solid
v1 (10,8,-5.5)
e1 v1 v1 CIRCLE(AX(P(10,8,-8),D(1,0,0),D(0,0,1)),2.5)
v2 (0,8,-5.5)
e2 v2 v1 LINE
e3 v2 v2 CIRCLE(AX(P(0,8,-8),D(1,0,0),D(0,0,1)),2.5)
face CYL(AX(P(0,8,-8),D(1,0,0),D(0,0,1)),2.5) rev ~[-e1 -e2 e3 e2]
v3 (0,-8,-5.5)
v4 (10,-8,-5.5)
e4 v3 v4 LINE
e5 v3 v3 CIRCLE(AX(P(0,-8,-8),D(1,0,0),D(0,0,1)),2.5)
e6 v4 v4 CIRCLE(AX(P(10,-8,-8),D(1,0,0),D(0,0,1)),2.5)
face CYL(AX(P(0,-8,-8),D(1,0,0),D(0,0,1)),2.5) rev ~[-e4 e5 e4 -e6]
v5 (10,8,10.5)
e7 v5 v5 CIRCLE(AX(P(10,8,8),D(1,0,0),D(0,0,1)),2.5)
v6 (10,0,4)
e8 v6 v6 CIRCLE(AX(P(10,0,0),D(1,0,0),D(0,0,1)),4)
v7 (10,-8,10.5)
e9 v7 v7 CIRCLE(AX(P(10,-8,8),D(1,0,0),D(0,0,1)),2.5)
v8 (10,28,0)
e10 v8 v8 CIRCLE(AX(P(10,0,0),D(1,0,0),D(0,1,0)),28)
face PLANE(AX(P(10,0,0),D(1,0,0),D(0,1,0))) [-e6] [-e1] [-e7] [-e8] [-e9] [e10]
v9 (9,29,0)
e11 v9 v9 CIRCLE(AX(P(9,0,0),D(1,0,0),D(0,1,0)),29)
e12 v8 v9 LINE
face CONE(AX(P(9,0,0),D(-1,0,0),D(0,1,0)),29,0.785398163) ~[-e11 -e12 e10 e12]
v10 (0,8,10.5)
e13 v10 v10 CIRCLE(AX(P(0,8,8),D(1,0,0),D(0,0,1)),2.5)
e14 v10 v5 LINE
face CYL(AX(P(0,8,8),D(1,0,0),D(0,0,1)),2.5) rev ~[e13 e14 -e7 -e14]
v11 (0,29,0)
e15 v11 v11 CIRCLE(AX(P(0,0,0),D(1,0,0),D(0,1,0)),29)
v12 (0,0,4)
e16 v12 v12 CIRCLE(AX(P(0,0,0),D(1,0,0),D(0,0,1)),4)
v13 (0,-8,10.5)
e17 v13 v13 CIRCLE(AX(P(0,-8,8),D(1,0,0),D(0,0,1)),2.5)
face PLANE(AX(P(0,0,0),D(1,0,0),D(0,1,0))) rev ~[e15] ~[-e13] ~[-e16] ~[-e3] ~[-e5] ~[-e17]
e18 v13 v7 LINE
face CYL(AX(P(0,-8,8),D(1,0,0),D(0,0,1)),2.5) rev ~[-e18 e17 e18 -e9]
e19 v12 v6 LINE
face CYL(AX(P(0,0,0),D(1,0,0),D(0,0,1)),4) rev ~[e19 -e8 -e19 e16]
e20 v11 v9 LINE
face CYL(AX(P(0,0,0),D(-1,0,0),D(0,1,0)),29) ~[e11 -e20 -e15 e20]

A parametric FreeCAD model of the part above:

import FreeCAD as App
import Part
import Sketcher
from FreeCAD import Vector


def edges_at(feature, points):
    """Names of the edges that pass closest to the given points."""
    edges = feature.Shape.Edges
    near = lambda p: min(range(len(edges)), key=lambda i: edges[i].distToShape(Part.Vertex(*p))[0])
    return sorted({f"Edge{near(p) + 1}" for p in points})

doc = App.newDocument("Part")
body = doc.addObject("PartDesign::Body", "Body")

# Sketch on YZ plane
sketch1 = body.newObject("Sketcher::SketchObject", "Sketch")
sketch1.AttachmentSupport = (doc.getObject("YZ_Plane"), [""])
sketch1.MapMode = "FlatFace"
sketch1.addGeometry(Part.Circle(Vector(0, 0, 0), Vector(0, 0, 1), 29), False)
sketch1.addConstraint([
    Sketcher.Constraint("Coincident", 0, 3, -1, 1),
    Sketcher.Constraint("Diameter", 0, 58.0),
])
pad1 = body.newObject("PartDesign::Pad", "Pad")
pad1.Profile = sketch1
pad1.Length = 10

# Sketch on YZ plane
sketch2 = body.newObject("Sketcher::SketchObject", "Sketch001")
sketch2.AttachmentSupport = (doc.getObject("YZ_Plane"), [""])
sketch2.MapMode = "FlatFace"
sketch2.addGeometry([
    Part.Circle(Vector(8, 8, 0), Vector(0, 0, 1), 2.5),
    Part.Circle(Vector(-8, 8, 0), Vector(0, 0, 1), 2.5),
    Part.Circle(Vector(-8, -8, 0), Vector(0, 0, 1), 2.5),
    Part.Circle(Vector(8, -8, 0), Vector(0, 0, 1), 2.5),
], False)
sketch2.addConstraint([
    Sketcher.Constraint("Equal", 0, 1),
    Sketcher.Constraint("Equal", 1, 2),
    Sketcher.Constraint("Equal", 2, 3),
    Sketcher.Constraint("Symmetric", 0, 3, 2, 3, -1, 1),
    Sketcher.Constraint("Symmetric", 1, 3, 3, 3, -1, 1),
    Sketcher.Constraint("Symmetric", 0, 3, 1, 3, -2),
    Sketcher.Constraint("Diameter", 0, 5.0),
    Sketcher.Constraint("DistanceX", -1, 1, 0, 3, 8.0),
    Sketcher.Constraint("DistanceY", -1, 1, 0, 3, 8.0),
])
doc.recompute()
hole = body.newObject("PartDesign::Hole", "Hole")
hole.Profile = sketch2
hole.ThreadType = "None"
hole.Diameter = 5
hole.DepthType = "ThroughAll"
hole.Reversed = True

# Sketch on YZ plane
sketch3 = body.newObject("Sketcher::SketchObject", "Sketch002")
sketch3.AttachmentSupport = (doc.getObject("YZ_Plane"), [""])
sketch3.MapMode = "FlatFace"
sketch3.addGeometry(Part.Circle(Vector(0, 0, 0), Vector(0, 0, 1), 4), False)
sketch3.addConstraint([
    Sketcher.Constraint("Coincident", 0, 3, -1, 1),
    Sketcher.Constraint("Diameter", 0, 8.0),
])
doc.recompute()
hole2 = body.newObject("PartDesign::Hole", "Hole001")
hole2.Profile = sketch3
hole2.ThreadType = "None"
hole2.Diameter = 8
hole2.DepthType = "ThroughAll"
hole2.Reversed = True
doc.recompute()

chamfer = body.newObject("PartDesign::Chamfer", "Chamfer")
chamfer.Base = (hole2, edges_at(hole2, [(10, -29, 0)]))
chamfer.ChamferType = "Two distances"
chamfer.Size = 1
chamfer.Size2 = 1

doc.recompute()
